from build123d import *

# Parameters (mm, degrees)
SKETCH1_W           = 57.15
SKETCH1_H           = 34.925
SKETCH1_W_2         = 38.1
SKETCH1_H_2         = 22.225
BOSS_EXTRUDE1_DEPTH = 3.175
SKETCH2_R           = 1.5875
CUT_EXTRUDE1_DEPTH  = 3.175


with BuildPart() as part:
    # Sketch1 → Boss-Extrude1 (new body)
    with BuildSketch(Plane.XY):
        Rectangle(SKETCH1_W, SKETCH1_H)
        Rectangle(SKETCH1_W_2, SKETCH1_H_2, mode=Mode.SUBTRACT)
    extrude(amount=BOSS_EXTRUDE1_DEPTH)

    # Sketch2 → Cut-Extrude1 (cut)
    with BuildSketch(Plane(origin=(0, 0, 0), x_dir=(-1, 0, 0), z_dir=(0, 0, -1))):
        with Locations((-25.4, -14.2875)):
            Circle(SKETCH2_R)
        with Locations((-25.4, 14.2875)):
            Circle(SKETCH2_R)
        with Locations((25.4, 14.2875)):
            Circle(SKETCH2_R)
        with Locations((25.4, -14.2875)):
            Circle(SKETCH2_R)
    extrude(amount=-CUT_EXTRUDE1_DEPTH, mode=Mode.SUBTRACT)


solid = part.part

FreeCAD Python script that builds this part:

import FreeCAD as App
import Part
import Sketcher

V = App.Vector
Q = App.Units.Quantity


def add_polygon(sketch, points):
    """Adds a closed chain of lines whose ends are joined by coincident constraints."""
    first, n = sketch.GeometryCount, len(points)
    for a, b in zip(points, points[1:] + points[:1]):
        sketch.addGeometry(Part.LineSegment(App.Vector(*a, 0), App.Vector(*b, 0)), False)
    for i in range(n):
        sketch.addConstraint(Sketcher.Constraint("Coincident", first + i, 2, first + (i + 1) % n, 1))

doc = App.newDocument("Part")
body = doc.addObject("PartDesign::Body", "Body")

# Sketch on XY plane
sketch1 = body.newObject("Sketcher::SketchObject", "Sketch")
sketch1.AttachmentSupport = (doc.getObject("XY_Plane"), [""])
sketch1.MapMode = "FlatFace"
add_polygon(sketch1, [(-29, 17), (-29, -17), (29, -17), (29, 17)])  # lines 0-3
add_polygon(sketch1, [(19, -11), (-19, -11), (-19, 11), (19, 11)])  # lines 4-7
sketch1.addConstraint(Sketcher.Constraint("Vertical", 0))
sketch1.addConstraint(Sketcher.Constraint("Horizontal", 1))
sketch1.addConstraint(Sketcher.Constraint("Vertical", 2))
sketch1.addConstraint(Sketcher.Constraint("Horizontal", 3))
sketch1.addConstraint(Sketcher.Constraint("Horizontal", 4))
sketch1.addConstraint(Sketcher.Constraint("Vertical", 5))
sketch1.addConstraint(Sketcher.Constraint("Horizontal", 6))
sketch1.addConstraint(Sketcher.Constraint("Vertical", 7))
sketch1.addConstraint(Sketcher.Constraint("Symmetric", 0, 2, 2, 2, -1, 1))
sketch1.addConstraint(Sketcher.Constraint("Symmetric", 4, 2, 6, 2, -1, 1))
sketch1.addConstraint(Sketcher.Constraint("DistanceX", 4, 2, 4, 1, Q("1.5 in")))
sketch1.addConstraint(Sketcher.Constraint("DistanceX", 1, 1, 1, 2, Q("2.25 in")))
sketch1.addConstraint(Sketcher.Constraint("DistanceY", 0, 2, 0, 1, Q("1.375 in")))
sketch1.addConstraint(Sketcher.Constraint("DistanceY", 5, 1, 5, 2, Q("0.875 in")))
pad1 = body.newObject("PartDesign::Pad", "Pad")
pad1.Profile = sketch1
pad1.Length = Q("0.125 in")

# Sketch on XY plane
sketch2 = body.newObject("Sketcher::SketchObject", "Sketch001")
sketch2.AttachmentSupport = (doc.getObject("XY_Plane"), [""])
sketch2.MapMode = "FlatFace"
sketch2.addGeometry(Part.Circle(V(25.4, -14.3, 0), V(0, 0, 1), 1.6), False)
sketch2.addGeometry(Part.Circle(V(25.4, 14.3, 0), V(0, 0, 1), 1.6), False)
sketch2.addGeometry(Part.Circle(V(-25.4, 14.3, 0), V(0, 0, 1), 1.6), False)
sketch2.addGeometry(Part.Circle(V(-25.4, -14.3, 0), V(0, 0, 1), 1.6), False)
sketch2.addConstraint(Sketcher.Constraint("Equal", 0, 1))
sketch2.addConstraint(Sketcher.Constraint("Equal", 1, 2))
sketch2.addConstraint(Sketcher.Constraint("Equal", 2, 3))
sketch2.addConstraint(Sketcher.Constraint("Symmetric", 0, 3, 2, 3, -1, 1))
sketch2.addConstraint(Sketcher.Constraint("Symmetric", 1, 3, 3, 3, -1, 1))
sketch2.addConstraint(Sketcher.Constraint("Symmetric", 1, 3, 2, 3, -2))
sketch2.addConstraint(Sketcher.Constraint("Diameter", 0, Q("0.125 in")))
sketch2.addConstraint(Sketcher.Constraint("DistanceX", -1, 1, 0, 3, Q("1 in")))
sketch2.addConstraint(Sketcher.Constraint("DistanceY", 0, 3, -1, 1, Q("0.5625 in")))
pocket1 = body.newObject("PartDesign::Pocket", "Pocket")
pocket1.Profile = sketch2
pocket1.Length = Q("0.125 in")
pocket1.Reversed = True

doc.recompute()
